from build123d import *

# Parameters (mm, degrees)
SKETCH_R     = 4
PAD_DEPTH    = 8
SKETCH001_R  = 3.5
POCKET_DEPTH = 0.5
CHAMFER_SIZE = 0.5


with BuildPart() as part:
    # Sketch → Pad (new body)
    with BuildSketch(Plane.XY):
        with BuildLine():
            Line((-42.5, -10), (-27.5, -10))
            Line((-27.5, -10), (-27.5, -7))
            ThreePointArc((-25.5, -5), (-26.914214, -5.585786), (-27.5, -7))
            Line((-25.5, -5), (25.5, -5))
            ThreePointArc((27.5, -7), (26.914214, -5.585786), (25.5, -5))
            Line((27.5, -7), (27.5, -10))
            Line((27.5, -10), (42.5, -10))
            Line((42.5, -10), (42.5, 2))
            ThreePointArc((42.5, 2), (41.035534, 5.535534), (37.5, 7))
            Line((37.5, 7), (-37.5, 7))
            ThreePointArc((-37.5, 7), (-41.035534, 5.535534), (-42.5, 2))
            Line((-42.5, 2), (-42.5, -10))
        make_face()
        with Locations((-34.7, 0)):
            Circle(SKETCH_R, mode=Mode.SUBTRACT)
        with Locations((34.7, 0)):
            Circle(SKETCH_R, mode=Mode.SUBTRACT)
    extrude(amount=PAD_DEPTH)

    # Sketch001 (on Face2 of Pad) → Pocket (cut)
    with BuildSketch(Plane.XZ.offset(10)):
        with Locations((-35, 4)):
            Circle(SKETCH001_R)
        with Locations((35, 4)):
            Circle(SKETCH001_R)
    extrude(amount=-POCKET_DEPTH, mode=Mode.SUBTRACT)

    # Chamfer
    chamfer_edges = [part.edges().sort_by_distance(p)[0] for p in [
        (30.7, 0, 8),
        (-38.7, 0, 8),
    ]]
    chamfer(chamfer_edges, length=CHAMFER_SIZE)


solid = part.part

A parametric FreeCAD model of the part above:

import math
import FreeCAD as App
import Part
import Sketcher
from FreeCAD import Vector
Q = App.Units.Quantity


def edges_at(feature, points):
    """Names of the edges that pass closest to the given points."""
    edges = feature.Shape.Edges
    near = lambda p: min(range(len(edges)), key=lambda i: edges[i].distToShape(Part.Vertex(*p))[0])
    return sorted({f"Edge{near(p) + 1}" for p in points})

doc = App.newDocument("Part")
body = doc.addObject("PartDesign::Body", "Body")

# Sketch on XY plane
sketch1 = body.newObject("Sketcher::SketchObject", "Sketch")
sketch1.AttachmentSupport = (doc.getObject("XY_Plane"), [""])
sketch1.MapMode = "FlatFace"
sketch1.addGeometry(Part.LineSegment(Vector(-42.5, -10, 0), Vector(-27.5, -10, 0)), False)
sketch1.addGeometry(Part.LineSegment(Vector(-27.5, -10, 0), Vector(-27.5, -7, 0)), False)
sketch1.addGeometry(Part.ArcOfCircle(Part.Circle(Vector(-25.5, -7, 0), Vector(0, 0, 1), 2), math.radians(90), math.radians(180)), False)
sketch1.addGeometry(Part.LineSegment(Vector(-25.5, -5, 0), Vector(25.5, -5, 0)), False)
sketch1.addGeometry(Part.ArcOfCircle(Part.Circle(Vector(25.5, -7, 0), Vector(0, 0, 1), 2), math.radians(0), math.radians(90)), False)
sketch1.addGeometry(Part.LineSegment(Vector(27.5, -7, 0), Vector(27.5, -10, 0)), False)
sketch1.addGeometry(Part.LineSegment(Vector(27.5, -10, 0), Vector(42.5, -10, 0)), False)
sketch1.addGeometry(Part.LineSegment(Vector(42.5, -10, 0), Vector(42.5, 2, 0)), False)
sketch1.addGeometry(Part.ArcOfCircle(Part.Circle(Vector(37.5, 2, 0), Vector(0, 0, 1), 5), math.radians(0), math.radians(90)), False)
sketch1.addGeometry(Part.LineSegment(Vector(37.5, 7, 0), Vector(-37.5, 7, 0)), False)
sketch1.addGeometry(Part.ArcOfCircle(Part.Circle(Vector(-37.5, 2, 0), Vector(0, 0, 1), 5), math.radians(90), math.radians(180)), False)
sketch1.addGeometry(Part.LineSegment(Vector(-42.5, 2, 0), Vector(-42.5, -10, 0)), False)
sketch1.addGeometry(Part.Circle(Vector(-34.7, 0, 0), Vector(0, 0, 1), 4), False)
sketch1.addGeometry(Part.Circle(Vector(34.7, 0, 0), Vector(0, 0, 1), 4), False)
sketch1.addConstraint(Sketcher.Constraint("Coincident", 0, 2, 1, 1))
sketch1.addConstraint(Sketcher.Constraint("Tangent", 1, 2, 2, 2))
sketch1.addConstraint(Sketcher.Constraint("Tangent", 2, 1, 3, 1))
sketch1.addConstraint(Sketcher.Constraint("Tangent", 3, 2, 4, 2))
sketch1.addConstraint(Sketcher.Constraint("Tangent", 4, 1, 5, 1))
sketch1.addConstraint(Sketcher.Constraint("Coincident", 5, 2, 6, 1))
sketch1.addConstraint(Sketcher.Constraint("Coincident", 6, 2, 7, 1))
sketch1.addConstraint(Sketcher.Constraint("Tangent", 7, 2, 8, 1))
sketch1.addConstraint(Sketcher.Constraint("Tangent", 8, 2, 9, 1))
sketch1.addConstraint(Sketcher.Constraint("Tangent", 9, 2, 10, 1))
sketch1.addConstraint(Sketcher.Constraint("Tangent", 10, 2, 11, 1))
sketch1.addConstraint(Sketcher.Constraint("Coincident", 11, 2, 0, 1))
sketch1.addConstraint(Sketcher.Constraint("Horizontal", 0))
sketch1.addConstraint(Sketcher.Constraint("Vertical", 1))
sketch1.addConstraint(Sketcher.Constraint("Horizontal", 3))
sketch1.addConstraint(Sketcher.Constraint("Vertical", 5))
sketch1.addConstraint(Sketcher.Constraint("Horizontal", 6))
sketch1.addConstraint(Sketcher.Constraint("Vertical", 7))
sketch1.addConstraint(Sketcher.Constraint("Horizontal", 9))
sketch1.addConstraint(Sketcher.Constraint("Vertical", 11))
sketch1.addConstraint(Sketcher.Constraint("Equal", 2, 4))
sketch1.addConstraint(Sketcher.Constraint("Equal", 8, 10))
sketch1.addConstraint(Sketcher.Constraint("Equal", 12, 13))
sketch1.addConstraint(Sketcher.Constraint("Symmetric", 12, 3, 13, 3, -1, 1))
sketch1.addConstraint(Sketcher.Constraint("Symmetric", 0, 2, 5, 2, -2))
sketch1.addConstraint(Sketcher.Constraint("PointOnObject", 12, 3, -1))
sketch1.addConstraint(Sketcher.Constraint("Equal", 0, 6))
sketch1.addConstraint(Sketcher.Constraint("Diameter", 12, Q("8 mm")))
sketch1.addConstraint(Sketcher.Constraint("Radius", 2, Q("1.999999 mm")))
sketch1.addConstraint(Sketcher.Constraint("Radius", 8, Q("5 mm")))
sketch1.addConstraint(Sketcher.Constraint("DistanceX", 0, 1, 0, 2, Q("15 mm")))
sketch1.addConstraint(Sketcher.Constraint("DistanceX", 3, 1, 3, 2, Q("51 mm")))
sketch1.addConstraint(Sketcher.Constraint("DistanceY", 1, 1, 1, 2, Q("3 mm")))
sketch1.addConstraint(Sketcher.Constraint("DistanceY", 7, 1, 7, 2, Q("12 mm")))
sketch1.addConstraint(Sketcher.Constraint("DistanceY", 2, 3, -1, 1, Q("6.999999 mm")))
sketch1.addConstraint(Sketcher.Constraint("DistanceX", 12, 3, -1, 1, Q("34.7 mm")))
pad1 = body.newObject("PartDesign::Pad", "Pad")
pad1.Profile = sketch1
pad1.Length = 8

# Sketch on XZ plane
sketch2 = body.newObject("Sketcher::SketchObject", "Sketch001")
sketch2.AttachmentSupport = (doc.getObject("XZ_Plane"), [""])
sketch2.MapMode = "FlatFace"
sketch2.AttachmentOffset = App.Placement(Vector(0, 0, 10), App.Rotation())
sketch2.addGeometry(Part.Circle(Vector(-35, 4, 0), Vector(0, 0, 1), 3.5), False)
sketch2.addGeometry(Part.Circle(Vector(35, 4, 0), Vector(0, 0, 1), 3.5), False)
sketch2.addConstraint(Sketcher.Constraint("Equal", 0, 1))
sketch2.addConstraint(Sketcher.Constraint("Symmetric", 0, 3, 1, 3, -2))
sketch2.addConstraint(Sketcher.Constraint("Diameter", 0, Q("7 mm")))
sketch2.addConstraint(Sketcher.Constraint("DistanceX", 0, 3, -1, 1, Q("35 mm")))
sketch2.addConstraint(Sketcher.Constraint("DistanceY", -1, 1, 0, 3, Q("4 mm")))
pocket1 = body.newObject("PartDesign::Pocket", "Pocket")
pocket1.Profile = sketch2
pocket1.Length = 0.5
doc.recompute()

chamfer = body.newObject("PartDesign::Chamfer", "Chamfer")
chamfer.Base = (pocket1, edges_at(pocket1, [(30.7, 0, 8), (-38.7, 0, 8)]))
chamfer.Size = 0.5

doc.recompute()
